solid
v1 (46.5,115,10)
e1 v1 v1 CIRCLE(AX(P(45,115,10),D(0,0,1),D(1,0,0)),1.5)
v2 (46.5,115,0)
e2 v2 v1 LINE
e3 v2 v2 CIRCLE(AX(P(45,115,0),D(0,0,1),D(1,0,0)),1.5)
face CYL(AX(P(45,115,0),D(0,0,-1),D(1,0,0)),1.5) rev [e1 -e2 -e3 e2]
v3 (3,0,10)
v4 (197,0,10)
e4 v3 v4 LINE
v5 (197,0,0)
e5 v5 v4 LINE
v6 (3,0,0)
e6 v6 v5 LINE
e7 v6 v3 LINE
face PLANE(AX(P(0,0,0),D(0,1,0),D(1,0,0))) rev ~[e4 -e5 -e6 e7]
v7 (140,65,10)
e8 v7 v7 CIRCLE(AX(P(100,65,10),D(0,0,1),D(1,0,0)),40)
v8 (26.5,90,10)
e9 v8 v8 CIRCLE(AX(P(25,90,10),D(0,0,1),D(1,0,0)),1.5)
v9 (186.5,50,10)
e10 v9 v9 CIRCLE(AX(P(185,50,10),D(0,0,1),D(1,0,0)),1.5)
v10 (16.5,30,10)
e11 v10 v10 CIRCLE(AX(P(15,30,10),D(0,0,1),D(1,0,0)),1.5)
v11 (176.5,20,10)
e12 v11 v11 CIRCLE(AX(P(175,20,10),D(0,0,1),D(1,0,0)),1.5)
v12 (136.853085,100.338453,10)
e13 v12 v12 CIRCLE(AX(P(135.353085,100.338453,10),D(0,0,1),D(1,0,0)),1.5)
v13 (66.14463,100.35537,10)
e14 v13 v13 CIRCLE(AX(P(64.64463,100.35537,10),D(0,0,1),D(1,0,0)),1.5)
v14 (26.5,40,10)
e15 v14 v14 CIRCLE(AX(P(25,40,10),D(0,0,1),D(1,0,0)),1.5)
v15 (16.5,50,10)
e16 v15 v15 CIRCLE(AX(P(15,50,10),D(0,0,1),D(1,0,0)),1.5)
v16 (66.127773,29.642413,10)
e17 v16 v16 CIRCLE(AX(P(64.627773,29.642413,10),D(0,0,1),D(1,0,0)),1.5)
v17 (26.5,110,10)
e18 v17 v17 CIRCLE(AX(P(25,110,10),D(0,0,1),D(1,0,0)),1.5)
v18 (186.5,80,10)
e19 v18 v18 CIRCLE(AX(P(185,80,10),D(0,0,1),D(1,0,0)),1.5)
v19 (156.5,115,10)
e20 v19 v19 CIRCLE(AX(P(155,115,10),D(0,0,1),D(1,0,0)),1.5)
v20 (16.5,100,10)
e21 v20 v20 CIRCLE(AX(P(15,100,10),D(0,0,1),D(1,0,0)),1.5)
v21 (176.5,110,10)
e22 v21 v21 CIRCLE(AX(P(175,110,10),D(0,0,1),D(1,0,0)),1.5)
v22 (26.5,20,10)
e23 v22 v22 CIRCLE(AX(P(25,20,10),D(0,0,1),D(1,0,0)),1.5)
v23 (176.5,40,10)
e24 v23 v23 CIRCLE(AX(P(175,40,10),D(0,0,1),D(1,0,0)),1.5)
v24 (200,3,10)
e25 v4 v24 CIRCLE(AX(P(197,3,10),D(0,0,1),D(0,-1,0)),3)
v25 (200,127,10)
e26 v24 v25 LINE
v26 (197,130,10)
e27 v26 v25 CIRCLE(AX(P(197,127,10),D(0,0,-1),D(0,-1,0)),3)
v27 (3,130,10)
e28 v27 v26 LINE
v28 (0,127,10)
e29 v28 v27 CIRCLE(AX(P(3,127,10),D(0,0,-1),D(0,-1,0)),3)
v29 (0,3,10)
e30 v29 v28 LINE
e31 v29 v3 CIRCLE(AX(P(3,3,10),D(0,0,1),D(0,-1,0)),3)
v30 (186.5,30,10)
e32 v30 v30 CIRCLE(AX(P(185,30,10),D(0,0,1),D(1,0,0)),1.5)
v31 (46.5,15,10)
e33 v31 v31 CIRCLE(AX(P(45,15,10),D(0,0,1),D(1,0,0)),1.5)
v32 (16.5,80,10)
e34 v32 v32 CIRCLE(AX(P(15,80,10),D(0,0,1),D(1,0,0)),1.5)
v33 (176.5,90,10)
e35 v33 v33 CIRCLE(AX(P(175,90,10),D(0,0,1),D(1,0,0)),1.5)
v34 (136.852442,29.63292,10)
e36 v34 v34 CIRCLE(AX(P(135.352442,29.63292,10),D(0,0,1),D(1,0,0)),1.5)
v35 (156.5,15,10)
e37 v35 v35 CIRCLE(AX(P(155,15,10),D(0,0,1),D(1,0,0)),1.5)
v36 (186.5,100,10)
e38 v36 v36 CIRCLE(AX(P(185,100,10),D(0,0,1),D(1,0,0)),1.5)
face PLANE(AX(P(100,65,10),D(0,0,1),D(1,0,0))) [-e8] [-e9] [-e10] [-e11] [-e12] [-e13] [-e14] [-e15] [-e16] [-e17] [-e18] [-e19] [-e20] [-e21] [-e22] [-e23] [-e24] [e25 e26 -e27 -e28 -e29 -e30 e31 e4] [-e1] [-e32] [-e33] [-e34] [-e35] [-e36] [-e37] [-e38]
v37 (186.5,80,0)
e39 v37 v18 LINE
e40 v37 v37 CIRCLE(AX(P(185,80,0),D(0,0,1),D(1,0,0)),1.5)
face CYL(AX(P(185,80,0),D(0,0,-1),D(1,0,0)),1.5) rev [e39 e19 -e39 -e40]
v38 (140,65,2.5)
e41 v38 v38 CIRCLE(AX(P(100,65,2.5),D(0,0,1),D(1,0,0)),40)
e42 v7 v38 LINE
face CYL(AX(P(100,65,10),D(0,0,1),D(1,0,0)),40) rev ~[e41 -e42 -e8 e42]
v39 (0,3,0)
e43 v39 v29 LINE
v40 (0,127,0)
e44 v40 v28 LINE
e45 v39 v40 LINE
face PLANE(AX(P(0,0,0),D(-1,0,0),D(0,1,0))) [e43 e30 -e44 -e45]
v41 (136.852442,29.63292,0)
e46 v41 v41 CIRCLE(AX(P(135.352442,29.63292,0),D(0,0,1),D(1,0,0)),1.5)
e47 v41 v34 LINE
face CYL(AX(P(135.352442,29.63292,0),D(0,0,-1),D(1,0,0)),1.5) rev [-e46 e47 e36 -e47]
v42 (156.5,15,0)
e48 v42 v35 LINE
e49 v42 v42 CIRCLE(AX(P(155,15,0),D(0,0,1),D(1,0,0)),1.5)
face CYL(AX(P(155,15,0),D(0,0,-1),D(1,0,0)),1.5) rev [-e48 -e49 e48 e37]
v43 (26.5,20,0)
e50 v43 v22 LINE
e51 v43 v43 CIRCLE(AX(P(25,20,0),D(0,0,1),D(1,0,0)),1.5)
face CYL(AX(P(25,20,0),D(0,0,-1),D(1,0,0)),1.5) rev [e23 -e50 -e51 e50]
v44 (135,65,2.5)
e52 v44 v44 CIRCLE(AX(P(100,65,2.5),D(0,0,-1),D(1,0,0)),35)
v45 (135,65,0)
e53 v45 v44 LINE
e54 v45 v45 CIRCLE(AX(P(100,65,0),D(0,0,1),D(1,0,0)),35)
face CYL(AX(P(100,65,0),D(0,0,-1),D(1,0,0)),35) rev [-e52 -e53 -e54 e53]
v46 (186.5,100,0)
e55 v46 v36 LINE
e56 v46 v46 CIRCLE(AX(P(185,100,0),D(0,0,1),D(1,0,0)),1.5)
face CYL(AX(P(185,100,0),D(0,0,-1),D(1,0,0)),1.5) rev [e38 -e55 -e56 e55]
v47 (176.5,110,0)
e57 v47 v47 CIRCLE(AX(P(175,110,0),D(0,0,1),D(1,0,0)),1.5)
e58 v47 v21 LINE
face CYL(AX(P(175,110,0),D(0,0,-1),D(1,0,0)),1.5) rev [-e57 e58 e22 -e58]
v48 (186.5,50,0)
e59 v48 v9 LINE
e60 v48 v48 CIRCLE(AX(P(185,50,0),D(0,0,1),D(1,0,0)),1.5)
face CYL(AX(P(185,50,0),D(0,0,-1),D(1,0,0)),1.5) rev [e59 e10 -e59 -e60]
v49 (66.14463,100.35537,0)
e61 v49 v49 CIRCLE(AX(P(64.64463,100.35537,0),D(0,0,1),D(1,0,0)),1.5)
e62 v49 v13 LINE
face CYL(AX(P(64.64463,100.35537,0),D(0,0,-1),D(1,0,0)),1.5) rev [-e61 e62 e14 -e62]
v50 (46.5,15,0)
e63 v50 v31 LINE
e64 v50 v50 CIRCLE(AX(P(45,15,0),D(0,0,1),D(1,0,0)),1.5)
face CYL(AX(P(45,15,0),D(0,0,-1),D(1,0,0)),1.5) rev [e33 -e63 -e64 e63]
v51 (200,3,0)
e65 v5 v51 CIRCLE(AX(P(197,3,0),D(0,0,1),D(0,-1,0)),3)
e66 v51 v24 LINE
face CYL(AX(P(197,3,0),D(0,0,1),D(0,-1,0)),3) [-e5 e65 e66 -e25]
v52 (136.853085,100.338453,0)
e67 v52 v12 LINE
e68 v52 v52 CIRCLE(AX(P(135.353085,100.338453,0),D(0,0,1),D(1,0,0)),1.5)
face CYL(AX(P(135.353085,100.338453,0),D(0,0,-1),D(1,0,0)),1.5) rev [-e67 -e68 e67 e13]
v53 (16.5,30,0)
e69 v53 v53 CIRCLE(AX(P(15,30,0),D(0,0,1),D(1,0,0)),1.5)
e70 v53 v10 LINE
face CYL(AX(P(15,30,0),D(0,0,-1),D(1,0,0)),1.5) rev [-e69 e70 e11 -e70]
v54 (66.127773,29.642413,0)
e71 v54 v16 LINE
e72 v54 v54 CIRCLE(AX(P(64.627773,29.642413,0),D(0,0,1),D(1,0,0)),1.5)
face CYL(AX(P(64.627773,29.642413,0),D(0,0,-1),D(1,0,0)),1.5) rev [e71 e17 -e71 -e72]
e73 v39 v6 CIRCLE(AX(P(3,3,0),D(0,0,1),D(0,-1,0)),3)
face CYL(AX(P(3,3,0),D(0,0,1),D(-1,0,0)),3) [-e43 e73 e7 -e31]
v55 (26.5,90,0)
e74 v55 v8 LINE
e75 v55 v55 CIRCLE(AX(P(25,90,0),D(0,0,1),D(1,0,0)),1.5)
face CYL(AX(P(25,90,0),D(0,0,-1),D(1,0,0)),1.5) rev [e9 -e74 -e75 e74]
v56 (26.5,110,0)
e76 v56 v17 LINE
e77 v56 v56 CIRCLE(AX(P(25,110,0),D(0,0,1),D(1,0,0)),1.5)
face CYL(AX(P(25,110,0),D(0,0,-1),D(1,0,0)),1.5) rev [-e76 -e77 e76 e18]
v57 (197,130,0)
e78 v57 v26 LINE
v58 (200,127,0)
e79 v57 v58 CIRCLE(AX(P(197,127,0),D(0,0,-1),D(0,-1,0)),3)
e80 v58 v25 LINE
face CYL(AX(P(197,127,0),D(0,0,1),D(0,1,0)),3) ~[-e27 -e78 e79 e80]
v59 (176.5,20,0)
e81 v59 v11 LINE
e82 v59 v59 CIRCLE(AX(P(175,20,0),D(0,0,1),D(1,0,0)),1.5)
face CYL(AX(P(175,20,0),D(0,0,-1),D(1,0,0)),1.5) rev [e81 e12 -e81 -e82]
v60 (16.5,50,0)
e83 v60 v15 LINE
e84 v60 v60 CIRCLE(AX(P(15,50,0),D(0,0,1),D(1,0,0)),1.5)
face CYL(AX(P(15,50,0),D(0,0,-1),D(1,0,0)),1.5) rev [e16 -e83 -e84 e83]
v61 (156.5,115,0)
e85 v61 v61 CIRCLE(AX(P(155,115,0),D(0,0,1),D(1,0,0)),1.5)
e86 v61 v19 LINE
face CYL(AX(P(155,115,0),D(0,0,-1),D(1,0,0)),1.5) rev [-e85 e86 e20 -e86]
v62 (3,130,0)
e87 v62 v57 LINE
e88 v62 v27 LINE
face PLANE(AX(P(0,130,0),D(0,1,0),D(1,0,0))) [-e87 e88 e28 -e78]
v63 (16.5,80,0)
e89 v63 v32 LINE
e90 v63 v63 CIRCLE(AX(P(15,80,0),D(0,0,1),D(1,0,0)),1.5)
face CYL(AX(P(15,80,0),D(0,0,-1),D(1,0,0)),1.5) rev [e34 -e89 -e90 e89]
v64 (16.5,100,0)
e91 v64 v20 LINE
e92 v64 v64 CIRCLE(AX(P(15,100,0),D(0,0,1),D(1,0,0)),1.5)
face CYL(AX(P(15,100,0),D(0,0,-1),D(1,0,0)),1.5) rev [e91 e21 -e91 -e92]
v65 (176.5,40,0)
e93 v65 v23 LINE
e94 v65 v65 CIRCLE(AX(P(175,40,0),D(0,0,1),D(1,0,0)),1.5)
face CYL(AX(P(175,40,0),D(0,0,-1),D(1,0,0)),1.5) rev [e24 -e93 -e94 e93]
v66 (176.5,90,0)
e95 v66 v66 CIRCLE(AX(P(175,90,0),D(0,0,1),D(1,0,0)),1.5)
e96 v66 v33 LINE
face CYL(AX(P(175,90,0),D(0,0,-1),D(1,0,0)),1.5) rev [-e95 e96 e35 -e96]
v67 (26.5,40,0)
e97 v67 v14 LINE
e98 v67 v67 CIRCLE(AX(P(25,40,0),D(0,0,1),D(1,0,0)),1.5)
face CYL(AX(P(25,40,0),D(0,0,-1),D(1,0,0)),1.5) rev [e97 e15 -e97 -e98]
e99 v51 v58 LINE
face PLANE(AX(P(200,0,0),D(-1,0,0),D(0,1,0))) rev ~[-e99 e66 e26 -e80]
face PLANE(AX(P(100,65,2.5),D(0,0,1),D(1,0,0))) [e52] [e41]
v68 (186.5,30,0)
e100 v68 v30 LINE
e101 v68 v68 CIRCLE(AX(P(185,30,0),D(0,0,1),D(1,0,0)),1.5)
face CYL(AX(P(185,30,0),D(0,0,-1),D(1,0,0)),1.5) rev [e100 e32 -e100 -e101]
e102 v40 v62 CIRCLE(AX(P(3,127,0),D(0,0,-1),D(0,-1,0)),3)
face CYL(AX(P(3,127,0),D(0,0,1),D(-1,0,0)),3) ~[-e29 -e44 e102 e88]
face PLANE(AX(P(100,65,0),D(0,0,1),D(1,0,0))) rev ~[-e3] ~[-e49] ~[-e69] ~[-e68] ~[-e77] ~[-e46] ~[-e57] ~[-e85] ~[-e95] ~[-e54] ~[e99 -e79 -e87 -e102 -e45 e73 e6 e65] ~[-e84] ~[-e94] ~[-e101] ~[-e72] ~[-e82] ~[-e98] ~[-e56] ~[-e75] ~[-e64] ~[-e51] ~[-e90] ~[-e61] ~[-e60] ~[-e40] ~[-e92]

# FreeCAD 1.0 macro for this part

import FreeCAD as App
import Part
import Sketcher
from FreeCAD import Vector
Q = App.Units.Quantity


def edges_at(feature, points):
    """Names of the edges that pass closest to the given points."""
    edges = feature.Shape.Edges
    near = lambda p: min(range(len(edges)), key=lambda i: edges[i].distToShape(Part.Vertex(*p))[0])
    return sorted({f"Edge{near(p) + 1}" for p in points})


def add_polygon(sketch, points):
    """Adds a closed chain of lines whose ends are joined by coincident constraints."""
    first, n = sketch.GeometryCount, len(points)
    for a, b in zip(points, points[1:] + points[:1]):
        sketch.addGeometry(Part.LineSegment(App.Vector(*a, 0), App.Vector(*b, 0)), False)
    for i in range(n):
        sketch.addConstraint(Sketcher.Constraint("Coincident", first + i, 2, first + (i + 1) % n, 1))

doc = App.newDocument("Part")
body = doc.addObject("PartDesign::Body", "Body")

sketch1 = body.newObject("Sketcher::SketchObject", "Sketch")
sketch1.AttachmentSupport = (doc.getObject("XY_Plane"), [""])
sketch1.MapMode = "FlatFace"
add_polygon(sketch1, [(0, 130), (0, 0), (200, 0), (200, 130)])
sketch1.addGeometry(Part.Circle(Vector(25, 20, 0), Vector(0, 0, 1), 1.5), False)
sketch1.addGeometry(Part.Circle(Vector(45, 15, 0), Vector(0, 0, 1), 1.5), False)
sketch1.addGeometry(Part.Circle(Vector(15, 30, 0), Vector(0, 0, 1), 1.5), False)
sketch1.addGeometry(Part.Circle(Vector(64.6, 29.6, 0), Vector(0, 0, 1), 1.5), False)
sketch1.addGeometry(Part.Circle(Vector(25, 40, 0), Vector(0, 0, 1), 1.5), False)
sketch1.addGeometry(Part.Circle(Vector(15, 50, 0), Vector(0, 0, 1), 1.5), False)
sketch1.addGeometry(Part.Circle(Vector(135.4, 29.6, 0), Vector(0, 0, 1), 1.5), False)
sketch1.addGeometry(Part.Circle(Vector(155, 15, 0), Vector(0, 0, 1), 1.5), False)
sketch1.addGeometry(Part.Circle(Vector(175, 20, 0), Vector(0, 0, 1), 1.5), False)
sketch1.addGeometry(Part.Circle(Vector(185, 30, 0), Vector(0, 0, 1), 1.5), False)
sketch1.addGeometry(Part.Circle(Vector(100, 65, 0), Vector(0, 0, 1), 35), False)
sketch1.addGeometry(Part.Circle(Vector(175, 40, 0), Vector(0, 0, 1), 1.5), False)
sketch1.addGeometry(Part.Circle(Vector(185, 50, 0), Vector(0, 0, 1), 1.5), False)
sketch1.addGeometry(Part.Circle(Vector(15, 80, 0), Vector(0, 0, 1), 1.5), False)
sketch1.addGeometry(Part.Circle(Vector(25, 90, 0), Vector(0, 0, 1), 1.5), False)
sketch1.addGeometry(Part.Circle(Vector(15, 100, 0), Vector(0, 0, 1), 1.5), False)
sketch1.addGeometry(Part.Circle(Vector(25, 110, 0), Vector(0, 0, 1), 1.5), False)
sketch1.addGeometry(Part.Circle(Vector(45, 115, 0), Vector(0, 0, 1), 1.5), False)
sketch1.addGeometry(Part.Circle(Vector(64.6, 100.4, 0), Vector(0, 0, 1), 1.5), False)
sketch1.addGeometry(Part.Circle(Vector(185, 80, 0), Vector(0, 0, 1), 1.5), False)
sketch1.addGeometry(Part.Circle(Vector(175, 90, 0), Vector(0, 0, 1), 1.5), False)
sketch1.addGeometry(Part.Circle(Vector(135.4, 100.3, 0), Vector(0, 0, 1), 1.5), False)
sketch1.addGeometry(Part.Circle(Vector(185, 100, 0), Vector(0, 0, 1), 1.5), False)
sketch1.addGeometry(Part.Circle(Vector(155, 115, 0), Vector(0, 0, 1), 1.5), False)
sketch1.addGeometry(Part.Circle(Vector(175, 110, 0), Vector(0, 0, 1), 1.5), False)
sketch1.addConstraint(Sketcher.Constraint("Vertical", 0))
sketch1.addConstraint(Sketcher.Constraint("Horizontal", 1))
sketch1.addConstraint(Sketcher.Constraint("Vertical", 2))
sketch1.addConstraint(Sketcher.Constraint("Horizontal", 3))
sketch1.addConstraint(Sketcher.Constraint("Coincident", 0, 2, -1, 1))
sketch1.addConstraint(Sketcher.Constraint("Equal", 4, 5))
sketch1.addConstraint(Sketcher.Constraint("Equal", 5, 6))
sketch1.addConstraint(Sketcher.Constraint("Equal", 6, 7))
sketch1.addConstraint(Sketcher.Constraint("Equal", 7, 8))
sketch1.addConstraint(Sketcher.Constraint("Equal", 8, 9))
sketch1.addConstraint(Sketcher.Constraint("Equal", 9, 10))
sketch1.addConstraint(Sketcher.Constraint("Equal", 10, 11))
sketch1.addConstraint(Sketcher.Constraint("Equal", 11, 12))
sketch1.addConstraint(Sketcher.Constraint("Equal", 12, 13))
sketch1.addConstraint(Sketcher.Constraint("Equal", 13, 15))
sketch1.addConstraint(Sketcher.Constraint("Equal", 15, 16))
sketch1.addConstraint(Sketcher.Constraint("Equal", 16, 17))
sketch1.addConstraint(Sketcher.Constraint("Equal", 17, 18))
sketch1.addConstraint(Sketcher.Constraint("Equal", 18, 19))
sketch1.addConstraint(Sketcher.Constraint("Equal", 19, 20))
sketch1.addConstraint(Sketcher.Constraint("Equal", 20, 21))
sketch1.addConstraint(Sketcher.Constraint("Equal", 21, 22))
sketch1.addConstraint(Sketcher.Constraint("Equal", 22, 23))
sketch1.addConstraint(Sketcher.Constraint("Equal", 23, 24))
sketch1.addConstraint(Sketcher.Constraint("Equal", 24, 25))
sketch1.addConstraint(Sketcher.Constraint("Equal", 25, 26))
sketch1.addConstraint(Sketcher.Constraint("Equal", 26, 27))
sketch1.addConstraint(Sketcher.Constraint("Equal", 27, 28))
sketch1.addConstraint(Sketcher.Constraint("Horizontal", 5, 3, 11, 3))
sketch1.addConstraint(Sketcher.Constraint("Horizontal", 4, 3, 12, 3))
sketch1.addConstraint(Sketcher.Constraint("Horizontal", 6, 3, 13, 3))
sketch1.addConstraint(Sketcher.Constraint("Horizontal", 8, 3, 15, 3))
sketch1.addConstraint(Sketcher.Constraint("Horizontal", 9, 3, 16, 3))
sketch1.addConstraint(Sketcher.Constraint("Horizontal", 17, 3, 23, 3))
sketch1.addConstraint(Sketcher.Constraint("Horizontal", 18, 3, 24, 3))
sketch1.addConstraint(Sketcher.Constraint("Horizontal", 19, 3, 26, 3))
sketch1.addConstraint(Sketcher.Constraint("Horizontal", 21, 3, 27, 3))
sketch1.addConstraint(Sketcher.Constraint("Horizontal", 20, 3, 28, 3))
sketch1.addConstraint(Sketcher.Constraint("Vertical", 4, 3, 8, 3))
sketch1.addConstraint(Sketcher.Constraint("Vertical", 6, 3, 9, 3))
sketch1.addConstraint(Sketcher.Constraint("Vertical", 12, 3, 15, 3))
sketch1.addConstraint(Sketcher.Constraint("Vertical", 13, 3, 16, 3))
sketch1.addConstraint(Sketcher.Constraint("Vertical", 9, 3, 17, 3))
sketch1.addConstraint(Sketcher.Constraint("Vertical", 8, 3, 18, 3))
sketch1.addConstraint(Sketcher.Constraint("Vertical", 17, 3, 19, 3))
sketch1.addConstraint(Sketcher.Constraint("Vertical", 18, 3, 20, 3))
sketch1.addConstraint(Sketcher.Constraint("Vertical", 5, 3, 21, 3))
sketch1.addConstraint(Sketcher.Constraint("Vertical", 16, 3, 23, 3))
sketch1.addConstraint(Sketcher.Constraint("Vertical", 15, 3, 24, 3))
sketch1.addConstraint(Sketcher.Constraint("Vertical", 23, 3, 26, 3))
sketch1.addConstraint(Sketcher.Constraint("Vertical", 11, 3, 27, 3))
sketch1.addConstraint(Sketcher.Constraint("Vertical", 24, 3, 28, 3))
sketch1.addConstraint(Sketcher.Constraint("Diameter", 4, Q("3 mm")))
sketch1.addConstraint(Sketcher.Constraint("Diameter", 14, Q("70 mm")))
sketch1.addConstraint(Sketcher.Constraint("DistanceX", 1, 1, 1, 2, Q("200 mm")))
sketch1.addConstraint(Sketcher.Constraint("DistanceY", 0, 2, 0, 1, Q("130 mm")))
sketch1.addConstraint(Sketcher.Constraint("DistanceX", -1, 1, 4, 3, Q("25 mm")))
sketch1.addConstraint(Sketcher.Constraint("DistanceY", -1, 1, 4, 3, Q("20 mm")))
sketch1.addConstraint(Sketcher.Constraint("DistanceX", -1, 1, 5, 3, Q("45 mm")))
sketch1.addConstraint(Sketcher.Constraint("DistanceY", -1, 1, 5, 3, Q("15 mm")))
sketch1.addConstraint(Sketcher.Constraint("DistanceX", -1, 1, 6, 3, Q("15 mm")))
sketch1.addConstraint(Sketcher.Constraint("DistanceY", -1, 1, 6, 3, Q("30 mm")))
sketch1.addConstraint(Sketcher.Constraint("DistanceY", -1, 1, 8, 3, Q("40 mm")))
sketch1.addConstraint(Sketcher.Constraint("DistanceY", -1, 1, 9, 3, Q("50 mm")))
sketch1.addConstraint(Sketcher.Constraint("DistanceX", -1, 1, 11, 3, Q("155 mm")))
sketch1.addConstraint(Sketcher.Constraint("DistanceX", -1, 1, 12, 3, Q("175 mm")))
sketch1.addConstraint(Sketcher.Constraint("DistanceX", -1, 1, 13, 3, Q("185 mm")))
sketch1.addConstraint(Sketcher.Constraint("DistanceX", -1, 1, 14, 3, Q("100 mm")))
sketch1.addConstraint(Sketcher.Constraint("DistanceY", -1, 1, 14, 3, Q("65 mm")))
sketch1.addConstraint(Sketcher.Constraint("DistanceY", -1, 1, 17, 3, Q("80 mm")))
sketch1.addConstraint(Sketcher.Constraint("DistanceY", -1, 1, 18, 3, Q("90 mm")))
sketch1.addConstraint(Sketcher.Constraint("DistanceY", -1, 1, 19, 3, Q("100 mm")))
sketch1.addConstraint(Sketcher.Constraint("DistanceY", -1, 1, 20, 3, Q("110 mm")))
sketch1.addConstraint(Sketcher.Constraint("DistanceY", -1, 1, 21, 3, Q("115 mm")))
sketch1.addConstraint(Sketcher.Constraint("DistanceX", -1, 1, 10, 3, Q("135.352442 mm")))
sketch1.addConstraint(Sketcher.Constraint("DistanceY", -1, 1, 10, 3, Q("29.63292 mm")))
sketch1.addConstraint(Sketcher.Constraint("DistanceX", -1, 1, 22, 3, Q("64.64463 mm")))
sketch1.addConstraint(Sketcher.Constraint("DistanceY", -1, 1, 22, 3, Q("100.35537 mm")))
sketch1.addConstraint(Sketcher.Constraint("DistanceX", 7, 3, 10, 3, Q("70.724669 mm")))
sketch1.addConstraint(Sketcher.Constraint("DistanceY", -1, 1, 7, 3, Q("29.642413 mm")))
sketch1.addConstraint(Sketcher.Constraint("DistanceX", -1, 1, 25, 3, Q("135.353085 mm")))
sketch1.addConstraint(Sketcher.Constraint("DistanceY", -1, 1, 25, 3, Q("100.338453 mm")))
pad1 = body.newObject("PartDesign::Pad", "Pad")
pad1.Profile = sketch1
pad1.Length = 10

sketch2 = body.newObject("Sketcher::SketchObject", "Sketch001")
sketch2.AttachmentSupport = (doc.getObject("XY_Plane"), [""])
sketch2.MapMode = "FlatFace"
sketch2.AttachmentOffset = App.Placement(Vector(0, 0, 10), App.Rotation())
sketch2.addGeometry(Part.Circle(Vector(100, 65, 0), Vector(0, 0, 1), 40), False)
sketch2.addConstraint(Sketcher.Constraint("Diameter", 0, Q("80 mm")))
sketch2.addConstraint(Sketcher.Constraint("DistanceX", -1, 1, 0, 3, Q("100 mm")))
sketch2.addConstraint(Sketcher.Constraint("DistanceY", -1, 1, 0, 3, Q("65 mm")))
pocket1 = body.newObject("PartDesign::Pocket", "Pocket")
pocket1.Profile = sketch2
pocket1.Length = 7.5
doc.recompute()

fillet = body.newObject("PartDesign::Fillet", "Fillet")
fillet.Base = (pocket1, edges_at(pocket1, [
    (200, 0, 5),
    (200, 130, 5),
    (0, 0, 5),
    (0, 130, 5),
]))
fillet.Radius = 3

doc.recompute()
